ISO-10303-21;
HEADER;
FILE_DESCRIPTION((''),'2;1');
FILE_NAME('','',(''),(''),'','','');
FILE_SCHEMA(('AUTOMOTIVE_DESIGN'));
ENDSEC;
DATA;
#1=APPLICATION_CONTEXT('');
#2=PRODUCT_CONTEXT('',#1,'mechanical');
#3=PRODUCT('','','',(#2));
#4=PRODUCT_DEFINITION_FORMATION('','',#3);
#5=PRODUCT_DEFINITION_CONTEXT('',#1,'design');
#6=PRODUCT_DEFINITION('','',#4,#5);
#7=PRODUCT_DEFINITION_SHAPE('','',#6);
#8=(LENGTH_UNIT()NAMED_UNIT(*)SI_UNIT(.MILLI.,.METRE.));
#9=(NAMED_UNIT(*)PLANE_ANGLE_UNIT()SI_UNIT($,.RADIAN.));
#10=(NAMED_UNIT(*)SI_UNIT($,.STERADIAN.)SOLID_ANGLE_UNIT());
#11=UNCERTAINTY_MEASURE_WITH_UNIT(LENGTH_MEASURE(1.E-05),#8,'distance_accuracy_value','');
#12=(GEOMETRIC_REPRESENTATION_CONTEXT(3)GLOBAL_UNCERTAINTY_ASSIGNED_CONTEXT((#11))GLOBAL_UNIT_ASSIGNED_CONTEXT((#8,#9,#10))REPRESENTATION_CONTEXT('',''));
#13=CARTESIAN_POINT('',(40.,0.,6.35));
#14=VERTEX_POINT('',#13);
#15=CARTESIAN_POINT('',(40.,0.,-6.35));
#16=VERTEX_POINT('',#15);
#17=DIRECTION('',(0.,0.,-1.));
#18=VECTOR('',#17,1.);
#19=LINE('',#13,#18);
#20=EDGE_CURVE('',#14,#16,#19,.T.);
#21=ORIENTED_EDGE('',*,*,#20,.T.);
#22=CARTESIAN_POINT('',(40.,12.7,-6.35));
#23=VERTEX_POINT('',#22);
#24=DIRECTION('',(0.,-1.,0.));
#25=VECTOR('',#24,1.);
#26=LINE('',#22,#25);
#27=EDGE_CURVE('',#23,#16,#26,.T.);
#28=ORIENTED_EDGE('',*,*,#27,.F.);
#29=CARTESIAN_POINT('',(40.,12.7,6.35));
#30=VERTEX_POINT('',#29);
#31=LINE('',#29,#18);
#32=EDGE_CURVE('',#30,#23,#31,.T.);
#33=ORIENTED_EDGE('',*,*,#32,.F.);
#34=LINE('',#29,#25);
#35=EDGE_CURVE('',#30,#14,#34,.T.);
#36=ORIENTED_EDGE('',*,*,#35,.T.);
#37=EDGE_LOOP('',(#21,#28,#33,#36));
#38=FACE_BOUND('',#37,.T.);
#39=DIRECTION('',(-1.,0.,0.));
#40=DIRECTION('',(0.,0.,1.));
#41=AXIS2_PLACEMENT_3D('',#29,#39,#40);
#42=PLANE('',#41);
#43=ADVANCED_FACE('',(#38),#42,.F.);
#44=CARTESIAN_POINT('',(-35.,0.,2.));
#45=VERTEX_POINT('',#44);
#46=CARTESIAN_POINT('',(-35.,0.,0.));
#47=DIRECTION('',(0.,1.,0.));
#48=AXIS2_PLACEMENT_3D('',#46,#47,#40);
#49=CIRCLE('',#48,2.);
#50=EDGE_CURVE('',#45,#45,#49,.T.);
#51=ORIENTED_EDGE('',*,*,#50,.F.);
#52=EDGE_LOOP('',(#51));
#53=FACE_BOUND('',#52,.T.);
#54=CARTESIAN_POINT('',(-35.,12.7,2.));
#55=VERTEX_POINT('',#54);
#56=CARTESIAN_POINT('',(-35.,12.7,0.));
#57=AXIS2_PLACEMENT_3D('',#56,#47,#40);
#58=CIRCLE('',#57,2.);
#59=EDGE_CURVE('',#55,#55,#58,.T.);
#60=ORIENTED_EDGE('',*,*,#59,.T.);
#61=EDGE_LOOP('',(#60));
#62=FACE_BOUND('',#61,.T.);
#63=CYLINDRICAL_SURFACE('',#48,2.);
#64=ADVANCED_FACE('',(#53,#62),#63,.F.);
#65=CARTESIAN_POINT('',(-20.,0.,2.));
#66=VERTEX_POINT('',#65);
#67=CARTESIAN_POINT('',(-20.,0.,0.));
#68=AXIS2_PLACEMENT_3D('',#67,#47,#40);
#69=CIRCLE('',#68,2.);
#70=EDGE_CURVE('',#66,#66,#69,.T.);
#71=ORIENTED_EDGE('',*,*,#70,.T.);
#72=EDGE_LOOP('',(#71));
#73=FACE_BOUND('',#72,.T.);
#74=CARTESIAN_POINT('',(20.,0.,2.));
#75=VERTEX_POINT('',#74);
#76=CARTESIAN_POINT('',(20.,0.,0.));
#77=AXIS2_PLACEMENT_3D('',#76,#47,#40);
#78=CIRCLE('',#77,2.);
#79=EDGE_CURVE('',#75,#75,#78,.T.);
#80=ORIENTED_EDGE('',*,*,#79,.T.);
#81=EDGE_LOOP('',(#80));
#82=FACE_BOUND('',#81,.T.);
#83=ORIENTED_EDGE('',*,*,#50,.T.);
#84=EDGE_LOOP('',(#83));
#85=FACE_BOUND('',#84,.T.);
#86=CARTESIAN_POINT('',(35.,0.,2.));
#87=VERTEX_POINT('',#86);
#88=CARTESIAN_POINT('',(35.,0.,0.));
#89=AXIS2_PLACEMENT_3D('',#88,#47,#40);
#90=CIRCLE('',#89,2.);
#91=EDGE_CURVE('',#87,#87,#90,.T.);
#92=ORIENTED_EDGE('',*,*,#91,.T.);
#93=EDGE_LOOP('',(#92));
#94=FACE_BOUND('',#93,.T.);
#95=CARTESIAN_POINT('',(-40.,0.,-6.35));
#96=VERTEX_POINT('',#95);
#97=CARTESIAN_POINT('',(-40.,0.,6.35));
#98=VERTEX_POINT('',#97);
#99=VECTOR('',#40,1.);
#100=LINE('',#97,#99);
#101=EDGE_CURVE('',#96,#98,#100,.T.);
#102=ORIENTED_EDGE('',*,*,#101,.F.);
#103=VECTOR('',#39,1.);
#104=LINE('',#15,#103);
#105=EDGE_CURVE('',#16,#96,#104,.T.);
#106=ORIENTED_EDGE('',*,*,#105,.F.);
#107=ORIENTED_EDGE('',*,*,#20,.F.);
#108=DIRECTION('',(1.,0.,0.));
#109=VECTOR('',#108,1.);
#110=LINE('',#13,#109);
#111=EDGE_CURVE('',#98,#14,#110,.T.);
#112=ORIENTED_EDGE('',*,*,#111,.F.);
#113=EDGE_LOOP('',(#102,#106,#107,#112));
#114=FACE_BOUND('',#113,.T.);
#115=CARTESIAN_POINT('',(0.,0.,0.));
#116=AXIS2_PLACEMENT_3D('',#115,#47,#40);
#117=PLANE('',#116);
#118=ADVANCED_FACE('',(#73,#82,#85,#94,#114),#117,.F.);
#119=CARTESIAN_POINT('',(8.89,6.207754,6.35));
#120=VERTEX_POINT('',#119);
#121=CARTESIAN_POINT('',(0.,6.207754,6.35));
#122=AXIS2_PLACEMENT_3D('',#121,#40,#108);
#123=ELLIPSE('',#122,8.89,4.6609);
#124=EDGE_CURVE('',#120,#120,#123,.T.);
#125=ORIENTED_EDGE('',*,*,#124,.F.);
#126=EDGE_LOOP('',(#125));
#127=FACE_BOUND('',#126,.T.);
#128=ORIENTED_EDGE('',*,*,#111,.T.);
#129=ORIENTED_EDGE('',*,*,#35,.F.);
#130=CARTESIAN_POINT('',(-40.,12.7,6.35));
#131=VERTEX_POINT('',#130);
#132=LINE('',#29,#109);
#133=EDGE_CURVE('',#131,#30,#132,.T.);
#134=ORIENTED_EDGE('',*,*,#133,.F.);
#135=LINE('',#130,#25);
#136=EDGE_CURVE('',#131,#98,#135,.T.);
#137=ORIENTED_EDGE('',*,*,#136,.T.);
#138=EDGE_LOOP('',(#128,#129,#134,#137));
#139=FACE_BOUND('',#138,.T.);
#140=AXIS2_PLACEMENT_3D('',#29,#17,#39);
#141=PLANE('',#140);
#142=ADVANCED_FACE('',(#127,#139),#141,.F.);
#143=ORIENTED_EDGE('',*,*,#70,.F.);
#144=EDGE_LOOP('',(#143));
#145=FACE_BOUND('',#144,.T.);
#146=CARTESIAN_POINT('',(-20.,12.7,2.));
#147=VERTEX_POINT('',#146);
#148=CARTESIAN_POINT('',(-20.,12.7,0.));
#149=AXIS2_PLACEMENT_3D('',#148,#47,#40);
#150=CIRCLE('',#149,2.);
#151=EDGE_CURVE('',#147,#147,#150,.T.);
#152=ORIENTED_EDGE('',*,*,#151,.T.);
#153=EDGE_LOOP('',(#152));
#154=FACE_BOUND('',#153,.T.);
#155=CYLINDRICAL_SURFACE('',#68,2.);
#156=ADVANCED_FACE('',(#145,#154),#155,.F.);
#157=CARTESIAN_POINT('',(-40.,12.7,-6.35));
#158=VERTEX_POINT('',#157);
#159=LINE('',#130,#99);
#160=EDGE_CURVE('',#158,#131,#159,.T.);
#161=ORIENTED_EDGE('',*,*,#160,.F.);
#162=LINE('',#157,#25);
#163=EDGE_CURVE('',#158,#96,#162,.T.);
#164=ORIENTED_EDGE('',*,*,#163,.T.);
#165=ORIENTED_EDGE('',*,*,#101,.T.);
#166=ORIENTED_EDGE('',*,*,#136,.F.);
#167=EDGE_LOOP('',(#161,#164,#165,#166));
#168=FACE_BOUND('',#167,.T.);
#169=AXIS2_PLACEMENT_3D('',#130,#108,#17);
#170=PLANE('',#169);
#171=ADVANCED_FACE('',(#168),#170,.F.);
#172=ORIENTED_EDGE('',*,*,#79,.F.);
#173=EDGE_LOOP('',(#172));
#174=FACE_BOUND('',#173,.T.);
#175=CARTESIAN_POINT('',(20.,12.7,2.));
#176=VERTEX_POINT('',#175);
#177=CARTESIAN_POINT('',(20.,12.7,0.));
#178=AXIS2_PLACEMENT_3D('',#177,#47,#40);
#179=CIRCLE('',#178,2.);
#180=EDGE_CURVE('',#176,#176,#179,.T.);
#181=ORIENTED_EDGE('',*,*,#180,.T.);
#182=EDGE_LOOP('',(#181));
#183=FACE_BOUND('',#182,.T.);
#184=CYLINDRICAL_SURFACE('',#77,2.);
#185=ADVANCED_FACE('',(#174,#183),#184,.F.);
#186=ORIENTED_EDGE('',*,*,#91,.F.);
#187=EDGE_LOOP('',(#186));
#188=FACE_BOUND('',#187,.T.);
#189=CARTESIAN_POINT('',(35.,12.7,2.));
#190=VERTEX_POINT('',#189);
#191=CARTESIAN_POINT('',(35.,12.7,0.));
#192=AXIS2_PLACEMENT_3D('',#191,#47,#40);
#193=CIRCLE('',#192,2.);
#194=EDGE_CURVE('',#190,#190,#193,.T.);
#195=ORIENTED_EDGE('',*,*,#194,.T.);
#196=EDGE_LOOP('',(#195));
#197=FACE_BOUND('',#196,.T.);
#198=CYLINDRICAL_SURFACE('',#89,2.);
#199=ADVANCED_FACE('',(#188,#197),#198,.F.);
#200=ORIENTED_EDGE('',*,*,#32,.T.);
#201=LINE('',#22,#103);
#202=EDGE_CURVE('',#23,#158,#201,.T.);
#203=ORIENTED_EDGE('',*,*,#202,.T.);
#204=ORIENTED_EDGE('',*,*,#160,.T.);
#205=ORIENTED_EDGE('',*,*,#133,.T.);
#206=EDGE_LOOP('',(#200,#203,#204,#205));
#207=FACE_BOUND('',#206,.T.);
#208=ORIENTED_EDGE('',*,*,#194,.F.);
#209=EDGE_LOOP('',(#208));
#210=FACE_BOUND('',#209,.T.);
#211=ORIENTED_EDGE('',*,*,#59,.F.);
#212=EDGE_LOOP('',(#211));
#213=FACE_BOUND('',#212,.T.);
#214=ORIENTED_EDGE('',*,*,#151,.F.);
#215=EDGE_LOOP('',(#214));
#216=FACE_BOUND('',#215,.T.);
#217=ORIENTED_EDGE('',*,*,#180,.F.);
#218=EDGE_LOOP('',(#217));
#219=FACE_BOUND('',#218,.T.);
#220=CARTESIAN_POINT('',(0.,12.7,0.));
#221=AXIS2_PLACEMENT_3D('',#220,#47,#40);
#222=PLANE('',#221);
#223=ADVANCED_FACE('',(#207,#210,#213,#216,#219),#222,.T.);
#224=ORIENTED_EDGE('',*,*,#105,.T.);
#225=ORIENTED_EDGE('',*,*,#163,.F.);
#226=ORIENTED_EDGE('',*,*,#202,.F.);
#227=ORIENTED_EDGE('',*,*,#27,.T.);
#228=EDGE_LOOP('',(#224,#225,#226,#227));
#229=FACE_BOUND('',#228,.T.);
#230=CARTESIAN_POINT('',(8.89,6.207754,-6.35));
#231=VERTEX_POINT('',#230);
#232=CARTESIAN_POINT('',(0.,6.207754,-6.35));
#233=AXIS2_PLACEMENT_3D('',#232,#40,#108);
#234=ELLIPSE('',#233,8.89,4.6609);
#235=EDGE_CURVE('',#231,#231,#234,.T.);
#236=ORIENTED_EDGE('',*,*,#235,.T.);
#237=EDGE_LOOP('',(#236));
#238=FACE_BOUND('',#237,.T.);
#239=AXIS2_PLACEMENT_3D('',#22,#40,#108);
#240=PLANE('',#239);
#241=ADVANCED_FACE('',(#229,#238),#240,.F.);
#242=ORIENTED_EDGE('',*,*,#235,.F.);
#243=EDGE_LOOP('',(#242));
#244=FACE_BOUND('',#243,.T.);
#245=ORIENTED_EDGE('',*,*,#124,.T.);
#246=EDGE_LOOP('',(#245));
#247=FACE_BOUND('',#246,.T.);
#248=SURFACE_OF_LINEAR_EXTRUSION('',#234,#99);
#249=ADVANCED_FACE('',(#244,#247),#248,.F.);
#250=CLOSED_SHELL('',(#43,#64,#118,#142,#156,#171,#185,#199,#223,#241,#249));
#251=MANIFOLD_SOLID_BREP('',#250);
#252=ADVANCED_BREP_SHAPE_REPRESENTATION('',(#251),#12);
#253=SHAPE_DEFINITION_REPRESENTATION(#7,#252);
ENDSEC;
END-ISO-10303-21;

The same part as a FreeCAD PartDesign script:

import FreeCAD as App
import Part
import Sketcher
from FreeCAD import Vector

doc = App.newDocument("Part")
body = doc.addObject("PartDesign::Body", "Body")

# Sketch on XZ plane
sketch1 = body.newObject("Sketcher::SketchObject", "Sketch")
sketch1.AttachmentSupport = (doc.getObject("XZ_Plane"), [""])
sketch1.MapMode = "FlatFace"
sketch1.addGeometry([
    Part.LineSegment(Vector(-40, -6, 0), Vector(-40, 6, 0)),
    Part.LineSegment(Vector(-40, 6, 0), Vector(40, 6, 0)),
    Part.LineSegment(Vector(40, 6, 0), Vector(40, -6, 0)),
    Part.LineSegment(Vector(40, -6, 0), Vector(-40, -6, 0)),
], False)
sketch1.addConstraint([
    Sketcher.Constraint("Coincident", 0, 2, 1, 1),
    Sketcher.Constraint("Coincident", 1, 2, 2, 1),
    Sketcher.Constraint("Coincident", 2, 2, 3, 1),
    Sketcher.Constraint("Coincident", 3, 2, 0, 1),
    Sketcher.Constraint("Vertical", 0),
    Sketcher.Constraint("Horizontal", 1),
    Sketcher.Constraint("Vertical", 2),
    Sketcher.Constraint("Horizontal", 3),
    Sketcher.Constraint("Symmetric", 0, 2, 2, 2, -1, 1),
    Sketcher.Constraint("DistanceX", 1, 1, 1, 2, 80.0),
    Sketcher.Constraint("DistanceY", 0, 1, 0, 2, 12.7),
])
pad1 = body.newObject("PartDesign::Pad", "Pad")
pad1.Profile = sketch1
pad1.Length = 12.7
pad1.Reversed = True

# Sketch on XZ plane
sketch2 = body.newObject("Sketcher::SketchObject", "Sketch001")
sketch2.AttachmentSupport = (doc.getObject("XZ_Plane"), [""])
sketch2.MapMode = "FlatFace"
sketch2.AttachmentOffset = App.Placement(Vector(0, 0, -12.7), App.Rotation())
sketch2.addGeometry([
    Part.Circle(Vector(-35, 0, 0), Vector(0, 0, 1), 2),
    Part.Circle(Vector(-20, 0, 0), Vector(0, 0, 1), 2),
    Part.Circle(Vector(35, 0, 0), Vector(0, 0, 1), 2),
    Part.Circle(Vector(20, 0, 0), Vector(0, 0, 1), 2),
], False)
sketch2.addConstraint([
    Sketcher.Constraint("Equal", 0, 1),
    Sketcher.Constraint("Equal", 1, 2),
    Sketcher.Constraint("Equal", 2, 3),
    Sketcher.Constraint("Symmetric", 0, 3, 2, 3, -1, 1),
    Sketcher.Constraint("Symmetric", 1, 3, 3, 3, -1, 1),
    Sketcher.Constraint("PointOnObject", 0, 3, -1),
    Sketcher.Constraint("PointOnObject", 1, 3, -1),
    Sketcher.Constraint("Diameter", 0, 4.0),
    Sketcher.Constraint("DistanceX", 0, 3, -1, 1, 35.0),
    Sketcher.Constraint("DistanceX", 1, 3, -1, 1, 20.0),
])
pocket1 = body.newObject("PartDesign::Pocket", "Pocket")
pocket1.Profile = sketch2
pocket1.Type = "ThroughAll"
pocket1.Reversed = True

# Sketch on XY plane
sketch3 = body.newObject("Sketcher::SketchObject", "Sketch002")
sketch3.AttachmentSupport = (doc.getObject("XY_Plane"), [""])
sketch3.MapMode = "FlatFace"
sketch3.AttachmentOffset = App.Placement(Vector(0, 0, 6.35), App.Rotation())
sketch3.addGeometry(Part.Ellipse(Vector(8.89, 6.207754, 0), Vector(0, 10.868654, 0), Vector(0, 6.207754, 0)), False)
sketch3.addConstraint(Sketcher.Constraint("Block", 0))
pocket2 = body.newObject("PartDesign::Pocket", "Pocket001")
pocket2.Profile = sketch3
pocket2.Type = "ThroughAll"

doc.recompute()
